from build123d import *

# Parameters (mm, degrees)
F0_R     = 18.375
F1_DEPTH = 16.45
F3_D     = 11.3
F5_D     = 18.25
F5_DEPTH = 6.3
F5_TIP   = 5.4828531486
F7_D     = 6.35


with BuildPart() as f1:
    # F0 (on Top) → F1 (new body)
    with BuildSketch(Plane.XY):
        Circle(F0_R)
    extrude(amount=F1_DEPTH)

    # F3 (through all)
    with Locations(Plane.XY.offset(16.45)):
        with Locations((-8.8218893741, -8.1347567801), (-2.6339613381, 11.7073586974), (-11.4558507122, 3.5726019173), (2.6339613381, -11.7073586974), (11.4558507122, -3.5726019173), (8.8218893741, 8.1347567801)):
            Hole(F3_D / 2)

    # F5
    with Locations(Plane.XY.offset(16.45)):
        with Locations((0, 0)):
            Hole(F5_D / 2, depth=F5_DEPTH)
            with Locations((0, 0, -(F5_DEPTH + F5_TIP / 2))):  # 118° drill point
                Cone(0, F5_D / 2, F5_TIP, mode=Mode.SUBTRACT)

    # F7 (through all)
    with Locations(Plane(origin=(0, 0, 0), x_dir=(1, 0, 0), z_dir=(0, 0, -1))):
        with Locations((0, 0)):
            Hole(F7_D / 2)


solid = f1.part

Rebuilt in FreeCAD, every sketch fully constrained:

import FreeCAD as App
import Part
import Sketcher
Q = App.Units.Quantity

doc = App.newDocument("Part")
body = doc.addObject("PartDesign::Body", "Body")

# Sketch on XY plane
sketch1 = body.newObject("Sketcher::SketchObject", "Sketch")
sketch1.AttachmentSupport = (doc.getObject("XY_Plane"), [""])
sketch1.MapMode = "FlatFace"
sketch1.addGeometry(Part.Circle(App.Vector(0, 0, 0), App.Vector(0, 0, 1), 18), False)
sketch1.addConstraint([
    Sketcher.Constraint("Coincident", 0, 3, -1, 1),
    Sketcher.Constraint("Diameter", 0, Q("36.75 mm")),
])
pad1 = body.newObject("PartDesign::Pad", "Pad")
pad1.Profile = sketch1
pad1.Length = 16.45

# Sketch on XY plane
sketch2 = body.newObject("Sketcher::SketchObject", "Sketch001")
sketch2.AttachmentSupport = (doc.getObject("XY_Plane"), [""])
sketch2.MapMode = "FlatFace"
sketch2.AttachmentOffset = App.Placement(App.Vector(0, 0, 16.45), App.Rotation())
sketch2.addGeometry([
    Part.Circle(App.Vector(-9, -8, 0), App.Vector(0, 0, 1), 6),  # 0
    Part.Circle(App.Vector(-3, 12, 0), App.Vector(0, 0, 1), 6),  # 1
    Part.Circle(App.Vector(-11, 4, 0), App.Vector(0, 0, 1), 6),  # 2
    Part.Circle(App.Vector(3, -12, 0), App.Vector(0, 0, 1), 6),  # 3
    Part.Circle(App.Vector(11, -4, 0), App.Vector(0, 0, 1), 6),  # 4
    Part.Circle(App.Vector(9, 8, 0), App.Vector(0, 0, 1), 6),  # 5
], False)
sketch2.addConstraint([
    Sketcher.Constraint("Equal", 0, 1),
    Sketcher.Constraint("Equal", 1, 2),
    Sketcher.Constraint("Equal", 2, 3),
    Sketcher.Constraint("Equal", 3, 4),
    Sketcher.Constraint("Equal", 4, 5),
    Sketcher.Constraint("Symmetric", 1, 3, 3, 3, -1, 1),
    Sketcher.Constraint("Symmetric", 2, 3, 4, 3, -1, 1),
    Sketcher.Constraint("Symmetric", 0, 3, 5, 3, -1, 1),
    Sketcher.Constraint("Diameter", 0, Q("11.3 mm")),
    Sketcher.Constraint("DistanceY", -1, 1, 2, 3, Q("3.572602 mm")),
    Sketcher.Constraint("DistanceY", 3, 3, 0, 3, Q("3.572602 mm")),
    Sketcher.Constraint("DistanceX", 2, 3, 4, 3, Q("22.911701 mm")),
    Sketcher.Constraint("DistanceX", 0, 3, -1, 1, Q("8.821889 mm")),
    Sketcher.Constraint("DistanceX", 1, 3, -1, 1, Q("2.633961 mm")),
    Sketcher.Constraint("DistanceY", -1, 1, 1, 3, Q("11.707359 mm")),
])
doc.recompute()
hole = body.newObject("PartDesign::Hole", "Hole")
hole.Profile = sketch2
hole.ThreadType = "None"
hole.Diameter = 11.3
hole.DepthType = "ThroughAll"

# Sketch on XY plane
sketch3 = body.newObject("Sketcher::SketchObject", "Sketch002")
sketch3.AttachmentSupport = (doc.getObject("XY_Plane"), [""])
sketch3.MapMode = "FlatFace"
sketch3.AttachmentOffset = App.Placement(App.Vector(0, 0, 16.45), App.Rotation())
sketch3.addGeometry(Part.Circle(App.Vector(0, 0, 0), App.Vector(0, 0, 1), 9), False)
sketch3.addConstraint([
    Sketcher.Constraint("Coincident", 0, 3, -1, 1),
    Sketcher.Constraint("Diameter", 0, Q("18.25 mm")),
])
doc.recompute()
hole2 = body.newObject("PartDesign::Hole", "Hole001")
hole2.Profile = sketch3
hole2.ThreadType = "None"
hole2.Diameter = 18.25
hole2.DepthType = "Dimension"
hole2.Depth = 6.3
hole2.DrillPoint = "Angled"
hole2.DrillPointAngle = 118

# Sketch on XY plane
sketch4 = body.newObject("Sketcher::SketchObject", "Sketch003")
sketch4.AttachmentSupport = (doc.getObject("XY_Plane"), [""])
sketch4.MapMode = "FlatFace"
sketch4.addGeometry(Part.Circle(App.Vector(0, 0, 0), App.Vector(0, 0, 1), 3.2), False)
sketch4.addConstraint([
    Sketcher.Constraint("Coincident", 0, 3, -1, 1),
    Sketcher.Constraint("Diameter", 0, Q("6.35 mm")),
])
doc.recompute()
hole3 = body.newObject("PartDesign::Hole", "Hole002")
hole3.Profile = sketch4
hole3.ThreadType = "None"
hole3.Diameter = 6.35
hole3.DepthType = "ThroughAll"
hole3.Reversed = True

doc.recompute()
